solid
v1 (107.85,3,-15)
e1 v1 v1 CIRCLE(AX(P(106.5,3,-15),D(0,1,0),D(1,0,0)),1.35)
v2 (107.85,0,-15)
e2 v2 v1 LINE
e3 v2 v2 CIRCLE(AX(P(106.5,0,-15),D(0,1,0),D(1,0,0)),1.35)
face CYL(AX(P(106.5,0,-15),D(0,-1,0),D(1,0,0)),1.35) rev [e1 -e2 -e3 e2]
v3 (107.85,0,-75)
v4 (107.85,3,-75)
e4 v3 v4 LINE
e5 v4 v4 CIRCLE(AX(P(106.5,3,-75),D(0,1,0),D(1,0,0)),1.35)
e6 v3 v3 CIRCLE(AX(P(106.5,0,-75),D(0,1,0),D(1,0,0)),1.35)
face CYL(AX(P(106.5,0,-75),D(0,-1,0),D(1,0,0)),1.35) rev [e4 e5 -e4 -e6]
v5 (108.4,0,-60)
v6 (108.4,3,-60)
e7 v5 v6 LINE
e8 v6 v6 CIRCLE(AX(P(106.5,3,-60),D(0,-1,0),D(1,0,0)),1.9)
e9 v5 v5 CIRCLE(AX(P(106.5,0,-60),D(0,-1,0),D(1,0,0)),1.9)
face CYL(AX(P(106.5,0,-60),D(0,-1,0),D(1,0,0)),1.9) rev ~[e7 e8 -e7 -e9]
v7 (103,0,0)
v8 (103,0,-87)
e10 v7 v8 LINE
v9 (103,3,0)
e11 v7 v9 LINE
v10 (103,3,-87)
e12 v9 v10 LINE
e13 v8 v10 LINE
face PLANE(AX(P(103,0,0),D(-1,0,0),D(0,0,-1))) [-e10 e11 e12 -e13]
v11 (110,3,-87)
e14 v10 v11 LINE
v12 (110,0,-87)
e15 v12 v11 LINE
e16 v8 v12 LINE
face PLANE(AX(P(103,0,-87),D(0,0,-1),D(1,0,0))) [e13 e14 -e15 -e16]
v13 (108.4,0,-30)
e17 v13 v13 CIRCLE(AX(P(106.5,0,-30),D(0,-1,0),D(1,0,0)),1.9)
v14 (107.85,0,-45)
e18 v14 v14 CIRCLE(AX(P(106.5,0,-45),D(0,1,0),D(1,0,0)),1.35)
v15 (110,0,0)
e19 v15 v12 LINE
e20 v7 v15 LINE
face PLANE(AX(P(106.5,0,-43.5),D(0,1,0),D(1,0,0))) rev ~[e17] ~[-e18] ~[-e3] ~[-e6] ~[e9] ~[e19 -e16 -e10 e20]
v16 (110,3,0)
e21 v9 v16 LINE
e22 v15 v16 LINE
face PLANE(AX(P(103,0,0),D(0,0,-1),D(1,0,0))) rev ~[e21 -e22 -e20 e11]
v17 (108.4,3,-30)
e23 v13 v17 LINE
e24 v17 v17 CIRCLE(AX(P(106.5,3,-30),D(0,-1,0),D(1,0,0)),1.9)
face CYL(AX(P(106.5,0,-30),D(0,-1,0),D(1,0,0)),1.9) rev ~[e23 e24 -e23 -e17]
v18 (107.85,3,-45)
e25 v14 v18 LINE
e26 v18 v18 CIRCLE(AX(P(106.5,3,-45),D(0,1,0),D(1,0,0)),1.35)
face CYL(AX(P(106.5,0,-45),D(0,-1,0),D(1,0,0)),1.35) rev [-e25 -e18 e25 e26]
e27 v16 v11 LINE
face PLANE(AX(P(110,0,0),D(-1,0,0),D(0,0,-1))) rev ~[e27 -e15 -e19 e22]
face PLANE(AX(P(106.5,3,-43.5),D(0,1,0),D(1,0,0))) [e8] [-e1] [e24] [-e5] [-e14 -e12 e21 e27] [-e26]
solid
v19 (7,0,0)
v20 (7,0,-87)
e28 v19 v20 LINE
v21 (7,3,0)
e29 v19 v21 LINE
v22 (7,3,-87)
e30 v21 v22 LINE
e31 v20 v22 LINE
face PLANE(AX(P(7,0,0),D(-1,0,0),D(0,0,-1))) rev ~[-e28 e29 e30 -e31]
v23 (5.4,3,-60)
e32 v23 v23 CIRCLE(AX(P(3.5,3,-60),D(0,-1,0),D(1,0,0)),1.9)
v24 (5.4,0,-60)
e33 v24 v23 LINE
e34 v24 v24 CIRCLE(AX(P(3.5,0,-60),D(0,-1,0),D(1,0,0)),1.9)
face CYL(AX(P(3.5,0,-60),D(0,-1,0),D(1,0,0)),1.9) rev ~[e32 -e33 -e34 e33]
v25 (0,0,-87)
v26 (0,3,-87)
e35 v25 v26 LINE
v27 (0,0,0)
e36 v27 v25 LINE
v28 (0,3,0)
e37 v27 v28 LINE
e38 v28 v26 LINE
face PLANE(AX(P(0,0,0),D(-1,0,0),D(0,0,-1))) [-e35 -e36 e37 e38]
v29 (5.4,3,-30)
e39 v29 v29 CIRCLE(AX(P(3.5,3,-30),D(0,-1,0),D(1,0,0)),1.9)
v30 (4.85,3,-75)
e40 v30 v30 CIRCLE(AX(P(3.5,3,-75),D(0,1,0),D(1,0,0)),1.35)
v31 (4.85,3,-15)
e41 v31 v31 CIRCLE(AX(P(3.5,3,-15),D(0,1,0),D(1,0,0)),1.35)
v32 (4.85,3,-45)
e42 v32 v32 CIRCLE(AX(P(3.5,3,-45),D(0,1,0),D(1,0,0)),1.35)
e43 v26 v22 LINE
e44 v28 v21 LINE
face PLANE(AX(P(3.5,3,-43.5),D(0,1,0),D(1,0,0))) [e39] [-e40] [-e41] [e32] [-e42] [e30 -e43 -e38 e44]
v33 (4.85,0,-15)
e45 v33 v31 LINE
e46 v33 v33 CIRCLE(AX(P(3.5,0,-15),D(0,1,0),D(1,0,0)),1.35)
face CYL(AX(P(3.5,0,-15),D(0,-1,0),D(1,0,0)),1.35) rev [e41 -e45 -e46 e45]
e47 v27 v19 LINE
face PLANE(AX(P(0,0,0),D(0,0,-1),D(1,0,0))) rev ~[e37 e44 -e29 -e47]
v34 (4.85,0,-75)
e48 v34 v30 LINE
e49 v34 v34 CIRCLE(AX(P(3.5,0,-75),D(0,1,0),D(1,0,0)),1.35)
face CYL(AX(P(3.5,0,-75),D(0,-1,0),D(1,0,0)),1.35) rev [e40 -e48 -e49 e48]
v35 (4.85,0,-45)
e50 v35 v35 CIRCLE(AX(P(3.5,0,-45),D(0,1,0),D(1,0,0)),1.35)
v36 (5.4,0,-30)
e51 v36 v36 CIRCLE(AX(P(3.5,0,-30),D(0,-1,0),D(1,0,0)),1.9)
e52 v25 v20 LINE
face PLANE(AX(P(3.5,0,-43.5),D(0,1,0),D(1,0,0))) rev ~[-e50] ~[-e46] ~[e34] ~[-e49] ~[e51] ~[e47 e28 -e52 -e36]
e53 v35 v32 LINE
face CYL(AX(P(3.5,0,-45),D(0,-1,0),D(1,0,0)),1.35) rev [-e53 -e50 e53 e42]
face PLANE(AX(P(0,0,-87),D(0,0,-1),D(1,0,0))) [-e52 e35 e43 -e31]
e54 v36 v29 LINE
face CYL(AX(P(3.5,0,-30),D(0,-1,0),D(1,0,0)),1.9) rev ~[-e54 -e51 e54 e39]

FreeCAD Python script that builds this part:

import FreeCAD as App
import Part
import Sketcher

V = App.Vector
Q = App.Units.Quantity


def add_polygon(sketch, points):
    """Adds a closed chain of lines whose ends are joined by coincident constraints."""
    first, n = sketch.GeometryCount, len(points)
    for a, b in zip(points, points[1:] + points[:1]):
        sketch.addGeometry(Part.LineSegment(App.Vector(*a, 0), App.Vector(*b, 0)), False)
    for i in range(n):
        sketch.addConstraint(Sketcher.Constraint("Coincident", first + i, 2, first + (i + 1) % n, 1))

doc = App.newDocument("Part")
params = doc.addObject("Spreadsheet::Sheet", "Params")
for row, (alias, value) in enumerate([
    ("sketch1_diameter", "2.7 mm"),
    ("sketch1_width", "7 mm"),
    ("sketch1_height", "87 mm"),
    ("pad1_length", "3 mm"),
    ("sketch2_diameter", "2.7 mm"),
    ("sketch2_width", "7 mm"),
    ("sketch2_height", "87 mm"),
    ("pad2_length", "3 mm"),
    ("sketch3_diameter", "3.8 mm"),
    ("pad3_length", "4 mm"),
], start=1):
    params.set(f"A{row}", alias)
    params.set(f"B{row}", "=" + value)
    params.setAlias(f"B{row}", alias)

body = doc.addObject("PartDesign::Body", "Body")

# Sketch on XZ plane
sketch1 = body.newObject("Sketcher::SketchObject", "Sketch")
sketch1.AttachmentSupport = (doc.getObject("XZ_Plane"), [""])
sketch1.MapMode = "FlatFace"
add_polygon(sketch1, [(0, -87), (0, 0), (7, 0), (7, -87)])  # lines 0-3
sketch1.addGeometry(Part.Circle(V(3.5, -15, 0), V(0, 0, 1), 1.4), False)  # 4
sketch1.addGeometry(Part.Circle(V(3.5, -30, 0), V(0, 0, 1), 1.4), False)  # 5
sketch1.addGeometry(Part.Circle(V(3.5, -45, 0), V(0, 0, 1), 1.4), False)  # 6
sketch1.addGeometry(Part.Circle(V(3.5, -60, 0), V(0, 0, 1), 1.4), False)  # 7
sketch1.addGeometry(Part.Circle(V(3.5, -75, 0), V(0, 0, 1), 1.4), False)  # 8
sketch1.addConstraint(Sketcher.Constraint("Vertical", 0))
sketch1.addConstraint(Sketcher.Constraint("Horizontal", 1))
sketch1.addConstraint(Sketcher.Constraint("Vertical", 2))
sketch1.addConstraint(Sketcher.Constraint("Horizontal", 3))
sketch1.addConstraint(Sketcher.Constraint("Coincident", 0, 2, -1, 1))
sketch1.addConstraint(Sketcher.Constraint("Equal", 4, 5))
sketch1.addConstraint(Sketcher.Constraint("Equal", 5, 6))
sketch1.addConstraint(Sketcher.Constraint("Equal", 6, 7))
sketch1.addConstraint(Sketcher.Constraint("Equal", 7, 8))
sketch1.addConstraint(Sketcher.Constraint("Vertical", 4, 3, 5, 3))
sketch1.addConstraint(Sketcher.Constraint("Vertical", 5, 3, 6, 3))
sketch1.addConstraint(Sketcher.Constraint("Vertical", 6, 3, 7, 3))
sketch1.addConstraint(Sketcher.Constraint("Vertical", 7, 3, 8, 3))
sketch1.addConstraint(Sketcher.Constraint("Diameter", 4, Q("2.7 mm")))
sketch1.addConstraint(Sketcher.Constraint("DistanceX", 1, 1, 1, 2, Q("7 mm")))
sketch1.addConstraint(Sketcher.Constraint("DistanceY", 0, 1, 0, 2, Q("87 mm")))
sketch1.addConstraint(Sketcher.Constraint("DistanceY", 4, 3, -1, 1, Q("15 mm")))
sketch1.addConstraint(Sketcher.Constraint("DistanceY", 5, 3, -1, 1, Q("30 mm")))
sketch1.addConstraint(Sketcher.Constraint("DistanceY", 6, 3, -1, 1, Q("45 mm")))
sketch1.addConstraint(Sketcher.Constraint("DistanceY", 7, 3, -1, 1, Q("60 mm")))
sketch1.addConstraint(Sketcher.Constraint("DistanceY", 8, 3, -1, 1, Q("75 mm")))
sketch1.addConstraint(Sketcher.Constraint("DistanceX", -1, 1, 4, 3, Q("3.5 mm")))
sketch1.setExpression("Constraints[17]", "Params.sketch1_diameter")
sketch1.setExpression("Constraints[18]", "Params.sketch1_width")
sketch1.setExpression("Constraints[19]", "Params.sketch1_height")
pad1 = body.newObject("PartDesign::Pad", "Pad")
pad1.Profile = sketch1
pad1.setExpression("Length", "Params.pad1_length")
pad1.Reversed = True
body2 = doc.addObject("PartDesign::Body", "Body001")

# Sketch on XZ plane
sketch2 = body2.newObject("Sketcher::SketchObject", "Sketch001")
sketch2.AttachmentSupport = (doc.getObject("XZ_Plane001"), [""])
sketch2.MapMode = "FlatFace"
add_polygon(sketch2, [(103, -87), (103, 0), (110, 0), (110, -87)])  # lines 0-3
sketch2.addGeometry(Part.Circle(V(106.5, -15, 0), V(0, 0, 1), 1.4), False)  # 4
sketch2.addGeometry(Part.Circle(V(106.5, -30, 0), V(0, 0, 1), 1.4), False)  # 5
sketch2.addGeometry(Part.Circle(V(106.5, -45, 0), V(0, 0, 1), 1.4), False)  # 6
sketch2.addGeometry(Part.Circle(V(106.5, -60, 0), V(0, 0, 1), 1.4), False)  # 7
sketch2.addGeometry(Part.Circle(V(106.5, -75, 0), V(0, 0, 1), 1.4), False)  # 8
sketch2.addConstraint(Sketcher.Constraint("Vertical", 0))
sketch2.addConstraint(Sketcher.Constraint("Horizontal", 1))
sketch2.addConstraint(Sketcher.Constraint("Vertical", 2))
sketch2.addConstraint(Sketcher.Constraint("Horizontal", 3))
sketch2.addConstraint(Sketcher.Constraint("Equal", 4, 5))
sketch2.addConstraint(Sketcher.Constraint("Equal", 5, 6))
sketch2.addConstraint(Sketcher.Constraint("Equal", 6, 7))
sketch2.addConstraint(Sketcher.Constraint("Equal", 7, 8))
sketch2.addConstraint(Sketcher.Constraint("PointOnObject", 0, 2, -1))
sketch2.addConstraint(Sketcher.Constraint("Vertical", 4, 3, 5, 3))
sketch2.addConstraint(Sketcher.Constraint("Vertical", 5, 3, 6, 3))
sketch2.addConstraint(Sketcher.Constraint("Vertical", 6, 3, 7, 3))
sketch2.addConstraint(Sketcher.Constraint("Vertical", 7, 3, 8, 3))
sketch2.addConstraint(Sketcher.Constraint("Diameter", 4, Q("2.7 mm")))
sketch2.addConstraint(Sketcher.Constraint("DistanceX", 1, 1, 1, 2, Q("7 mm")))
sketch2.addConstraint(Sketcher.Constraint("DistanceY", 0, 1, 0, 2, Q("87 mm")))
sketch2.addConstraint(Sketcher.Constraint("DistanceY", 4, 3, -1, 1, Q("15 mm")))
sketch2.addConstraint(Sketcher.Constraint("DistanceY", 5, 3, -1, 1, Q("30 mm")))
sketch2.addConstraint(Sketcher.Constraint("DistanceY", 6, 3, -1, 1, Q("45 mm")))
sketch2.addConstraint(Sketcher.Constraint("DistanceY", 7, 3, -1, 1, Q("60 mm")))
sketch2.addConstraint(Sketcher.Constraint("DistanceY", 8, 3, -1, 1, Q("75 mm")))
sketch2.addConstraint(Sketcher.Constraint("DistanceX", -1, 1, 0, 2, Q("103 mm")))
sketch2.addConstraint(Sketcher.Constraint("DistanceX", -1, 1, 4, 3, Q("106.5 mm")))
sketch2.setExpression("Constraints[17]", "Params.sketch2_diameter")
sketch2.setExpression("Constraints[18]", "Params.sketch2_width")
sketch2.setExpression("Constraints[19]", "Params.sketch2_height")
pad2 = body2.newObject("PartDesign::Pad", "Pad001")
pad2.Profile = sketch2
pad2.setExpression("Length", "Params.pad2_length")
pad2.Reversed = True
body3 = doc.addObject("PartDesign::Body", "Body002")
body3.AllowCompound = True

# Sketch on XZ plane
sketch3 = body3.newObject("Sketcher::SketchObject", "Sketch002")
sketch3.AttachmentSupport = (doc.getObject("XZ_Plane002"), [""])
sketch3.MapMode = "FlatFace"
sketch3.addGeometry(Part.Circle(V(3.5, -30, 0), V(0, 0, 1), 1.9), False)
sketch3.addGeometry(Part.Circle(V(106.5, -30, 0), V(0, 0, 1), 1.9), False)
sketch3.addGeometry(Part.Circle(V(106.5, -60, 0), V(0, 0, 1), 1.9), False)
sketch3.addGeometry(Part.Circle(V(3.5, -60, 0), V(0, 0, 1), 1.9), False)
sketch3.addConstraint(Sketcher.Constraint("Equal", 0, 1))
sketch3.addConstraint(Sketcher.Constraint("Equal", 1, 2))
sketch3.addConstraint(Sketcher.Constraint("Equal", 2, 3))
sketch3.addConstraint(Sketcher.Constraint("Horizontal", 0, 3, 1, 3))
sketch3.addConstraint(Sketcher.Constraint("Horizontal", 2, 3, 3, 3))
sketch3.addConstraint(Sketcher.Constraint("Vertical", 1, 3, 2, 3))
sketch3.addConstraint(Sketcher.Constraint("Vertical", 0, 3, 3, 3))
sketch3.addConstraint(Sketcher.Constraint("Diameter", 0, Q("3.8 mm")))
sketch3.addConstraint(Sketcher.Constraint("DistanceY", 0, 3, -1, 1, Q("30 mm")))
sketch3.addConstraint(Sketcher.Constraint("DistanceY", 2, 3, -1, 1, Q("60 mm")))
sketch3.addConstraint(Sketcher.Constraint("DistanceX", 0, 3, 1, 3, Q("103 mm")))
sketch3.addConstraint(Sketcher.Constraint("DistanceX", -1, 1, 0, 3, Q("3.5 mm")))
sketch3.setExpression("Constraints[7]", "Params.sketch3_diameter")
pad3 = body3.newObject("PartDesign::Pad", "Pad002")
pad3.Profile = sketch3
pad3.setExpression("Length", "Params.pad3_length")
pad3.Reversed = True
doc.recompute()

body4 = doc.addObject("PartDesign::Body", "Body003")
body4.BaseFeature = body3
boolean = body.newObject("PartDesign::Boolean", "Boolean")
boolean.Type = "Cut"
boolean.addObjects([body4])
doc.recompute()

boolean2 = body2.newObject("PartDesign::Boolean", "Boolean001")
boolean2.Type = "Cut"
boolean2.addObjects([body3])

doc.recompute()
